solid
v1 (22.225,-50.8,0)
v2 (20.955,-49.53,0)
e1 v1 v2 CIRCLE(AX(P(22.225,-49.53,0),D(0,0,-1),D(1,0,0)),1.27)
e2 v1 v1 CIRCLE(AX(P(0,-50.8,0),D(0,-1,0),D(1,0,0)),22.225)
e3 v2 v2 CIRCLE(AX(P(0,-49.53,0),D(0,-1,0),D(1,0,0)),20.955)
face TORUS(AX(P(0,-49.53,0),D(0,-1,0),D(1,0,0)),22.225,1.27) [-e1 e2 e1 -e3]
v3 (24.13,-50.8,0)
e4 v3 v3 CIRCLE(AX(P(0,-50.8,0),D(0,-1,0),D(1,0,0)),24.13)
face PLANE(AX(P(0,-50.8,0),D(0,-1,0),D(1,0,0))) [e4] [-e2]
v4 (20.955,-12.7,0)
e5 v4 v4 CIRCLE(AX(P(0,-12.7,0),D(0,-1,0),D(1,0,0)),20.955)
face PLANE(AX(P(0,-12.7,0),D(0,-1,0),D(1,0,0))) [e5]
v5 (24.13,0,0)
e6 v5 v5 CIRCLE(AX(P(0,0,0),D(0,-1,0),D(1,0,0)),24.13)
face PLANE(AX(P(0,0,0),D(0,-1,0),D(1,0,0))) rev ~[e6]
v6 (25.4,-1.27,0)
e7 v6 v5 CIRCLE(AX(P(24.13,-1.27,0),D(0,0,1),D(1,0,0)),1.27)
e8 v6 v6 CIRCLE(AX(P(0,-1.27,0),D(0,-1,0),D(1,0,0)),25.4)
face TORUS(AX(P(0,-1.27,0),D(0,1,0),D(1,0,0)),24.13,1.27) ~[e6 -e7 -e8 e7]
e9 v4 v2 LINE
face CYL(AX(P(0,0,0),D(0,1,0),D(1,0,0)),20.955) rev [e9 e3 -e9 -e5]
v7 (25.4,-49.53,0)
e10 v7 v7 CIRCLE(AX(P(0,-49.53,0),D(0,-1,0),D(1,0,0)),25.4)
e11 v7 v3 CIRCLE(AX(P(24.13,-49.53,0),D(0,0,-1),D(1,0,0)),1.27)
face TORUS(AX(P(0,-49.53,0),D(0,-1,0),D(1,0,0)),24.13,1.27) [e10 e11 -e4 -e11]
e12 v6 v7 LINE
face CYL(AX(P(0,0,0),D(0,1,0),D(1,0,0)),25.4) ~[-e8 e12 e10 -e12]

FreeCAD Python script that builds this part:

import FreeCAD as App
import Part
import Sketcher
Q = App.Units.Quantity


def edges_at(feature, points):
    """Names of the edges that pass closest to the given points."""
    edges = feature.Shape.Edges
    near = lambda p: min(range(len(edges)), key=lambda i: edges[i].distToShape(Part.Vertex(*p))[0])
    return sorted({f"Edge{near(p) + 1}" for p in points})

doc = App.newDocument("Part")
body = doc.addObject("PartDesign::Body", "Body")

sketch1 = body.newObject("Sketcher::SketchObject", "Sketch")
sketch1.AttachmentSupport = (doc.getObject("XZ_Plane"), [""])
sketch1.MapMode = "FlatFace"
sketch1.addGeometry(Part.Circle(App.Vector(0, 0, 0), App.Vector(0, 0, 1), 25), False)
sketch1.addGeometry(Part.Circle(App.Vector(0, 0, 0), App.Vector(0, 0, 1), 21), False)
sketch1.addConstraint(Sketcher.Constraint("Coincident", 0, 3, -1, 1))
sketch1.addConstraint(Sketcher.Constraint("Coincident", 1, 3, -1, 1))
sketch1.addConstraint(Sketcher.Constraint("Diameter", 0, Q("2 in")))
sketch1.addConstraint(Sketcher.Constraint("Diameter", 1, Q("1.65 in")))
pad1 = body.newObject("PartDesign::Pad", "Pad")
pad1.Profile = sketch1
pad1.Length = Q("2 in")

sketch2 = body.newObject("Sketcher::SketchObject", "Sketch001")
sketch2.AttachmentSupport = (doc.getObject("XZ_Plane"), [""])
sketch2.MapMode = "FlatFace"
sketch2.addGeometry(Part.Circle(App.Vector(0, 0, 0), App.Vector(0, 0, 1), 21), False)
sketch2.addConstraint(Sketcher.Constraint("Coincident", 0, 3, -1, 1))
sketch2.addConstraint(Sketcher.Constraint("Diameter", 0, Q("1.65 in")))
pad2 = body.newObject("PartDesign::Pad", "Pad001")
pad2.Profile = sketch2
pad2.Length = Q("0.5 in")
doc.recompute()

fillet = body.newObject("PartDesign::Fillet", "Fillet")
fillet.Base = (pad2, edges_at(pad2, [(-25.4, -50.8, 0)]))
fillet.Radius = Q("0.05 in")
doc.recompute()

fillet2 = body.newObject("PartDesign::Fillet", "Fillet001")
fillet2.Base = (fillet, edges_at(fillet, [(-20.955, -50.8, 0)]))
fillet2.Radius = Q("0.05 in")
doc.recompute()

fillet3 = body.newObject("PartDesign::Fillet", "Fillet002")
fillet3.Base = (fillet2, edges_at(fillet2, [(-25.4, 0, 0)]))
fillet3.Radius = Q("0.05 in")

doc.recompute()
